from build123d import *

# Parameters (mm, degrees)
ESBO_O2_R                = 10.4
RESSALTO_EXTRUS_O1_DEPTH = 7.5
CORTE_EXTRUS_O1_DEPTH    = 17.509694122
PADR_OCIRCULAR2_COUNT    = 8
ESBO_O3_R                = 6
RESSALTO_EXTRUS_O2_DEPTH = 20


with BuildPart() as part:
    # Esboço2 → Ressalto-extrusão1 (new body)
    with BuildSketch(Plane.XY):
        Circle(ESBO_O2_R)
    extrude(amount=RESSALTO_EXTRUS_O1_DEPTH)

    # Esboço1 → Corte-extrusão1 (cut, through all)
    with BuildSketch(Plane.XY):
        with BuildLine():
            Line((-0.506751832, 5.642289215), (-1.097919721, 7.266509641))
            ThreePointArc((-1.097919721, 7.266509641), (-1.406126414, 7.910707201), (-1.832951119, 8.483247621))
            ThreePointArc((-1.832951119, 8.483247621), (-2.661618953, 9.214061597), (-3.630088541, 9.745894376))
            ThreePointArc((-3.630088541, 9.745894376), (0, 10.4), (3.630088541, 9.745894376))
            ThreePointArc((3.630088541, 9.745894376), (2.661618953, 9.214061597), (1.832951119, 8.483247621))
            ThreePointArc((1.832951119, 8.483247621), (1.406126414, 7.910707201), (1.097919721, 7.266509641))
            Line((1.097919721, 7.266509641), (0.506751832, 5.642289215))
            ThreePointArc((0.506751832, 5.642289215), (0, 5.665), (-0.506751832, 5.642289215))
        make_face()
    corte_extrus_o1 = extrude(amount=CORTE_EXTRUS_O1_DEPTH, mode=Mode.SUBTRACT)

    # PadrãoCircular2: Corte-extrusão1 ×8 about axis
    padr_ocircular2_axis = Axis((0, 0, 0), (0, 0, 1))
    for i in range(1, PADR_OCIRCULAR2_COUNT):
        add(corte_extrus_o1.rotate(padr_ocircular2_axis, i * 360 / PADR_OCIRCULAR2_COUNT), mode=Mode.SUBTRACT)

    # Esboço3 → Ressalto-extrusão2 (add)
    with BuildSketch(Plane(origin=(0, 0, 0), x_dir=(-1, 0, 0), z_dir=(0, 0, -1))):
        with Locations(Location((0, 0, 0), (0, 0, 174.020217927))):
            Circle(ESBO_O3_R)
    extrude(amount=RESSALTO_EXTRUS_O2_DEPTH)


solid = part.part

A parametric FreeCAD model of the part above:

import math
import FreeCAD as App
import Part
import Sketcher

V = App.Vector
Q = App.Units.Quantity

doc = App.newDocument("Part")
params = doc.addObject("Spreadsheet::Sheet", "Params")
for row, (alias, value) in enumerate([
    ("sketch1_diameter", "20.8 mm"),
    ("pad1_length", "7.5 mm"),
    ("sketch2_radius", "10.4 mm"),
    ("sketch2_radius2", "3.68 mm"),
    ("sketch2_radius3", "5.02 mm"),
    ("sketch3_diameter", "12 mm"),
    ("pad2_length", "20 mm"),
], start=1):
    params.set(f"A{row}", alias)
    params.set(f"B{row}", "=" + value)
    params.setAlias(f"B{row}", alias)

body = doc.addObject("PartDesign::Body", "Body")

sketch1 = doc.addObject("Sketcher::SketchObject", "Sketch")
body.addObject(sketch1)
sketch1.AttachmentSupport = (doc.XY_Plane, [""])
sketch1.MapMode = "FlatFace"
sketch1.addGeometry(Part.Circle(V(0, 0, 0), V(0, 0, 1), 10), False)
sketch1.addConstraint([
    Sketcher.Constraint("Coincident", 0, 3, -1, 1),
    Sketcher.Constraint("Diameter", 0, Q("20.8 mm")),
])
sketch1.setExpression("Constraints[1]", "Params.sketch1_diameter")
pad1 = doc.addObject("PartDesign::Pad", "Pad")
body.addObject(pad1)
pad1.Profile = sketch1
pad1.setExpression("Length", "Params.pad1_length")

sketch2 = doc.addObject("Sketcher::SketchObject", "Sketch001")
body.addObject(sketch2)
sketch2.AttachmentSupport = (doc.XY_Plane, [""])
sketch2.MapMode = "FlatFace"
sketch2.addGeometry([
    Part.LineSegment(V(-1.1, 7.3, 0), V(-0.5, 5.6, 0)),
    Part.ArcOfCircle(Part.Circle(V(0, 0, 0), V(0, 0, 1), 5.7), math.radians(84.87), math.radians(95.13)),
    Part.LineSegment(V(0.5, 5.6, 0), V(1.1, 7.3, 0)),
    Part.ArcOfCircle(Part.Circle(V(4.6, 6, 0), V(0, 0, 1), 3.7), math.radians(138), math.radians(160)),
    Part.ArcOfCircle(Part.Circle(V(5.5, 5.1, 0), V(0, 0, 1), 5), math.radians(112), math.radians(138)),
    Part.ArcOfCircle(Part.Circle(V(0, 0, 0), V(0, 0, 1), 10.4), math.radians(70), math.radians(110)),
    Part.ArcOfCircle(Part.Circle(V(-5.5, 5.1, 0), V(0, 0, 1), 5), math.radians(42), math.radians(68)),
    Part.ArcOfCircle(Part.Circle(V(-4.6, 6, 0), V(0, 0, 1), 3.7), math.radians(20), math.radians(42)),
], False)
sketch2.addConstraint([
    Sketcher.Constraint("Coincident", 0, 2, 1, 2),
    Sketcher.Constraint("Coincident", 1, 1, 2, 1),
    Sketcher.Constraint("Tangent", 2, 2, 3, 2),
    Sketcher.Constraint("Tangent", 3, 1, 4, 2),
    Sketcher.Constraint("Coincident", 4, 1, 5, 1),
    Sketcher.Constraint("Coincident", 5, 2, 6, 2),
    Sketcher.Constraint("Tangent", 6, 1, 7, 2),
    Sketcher.Constraint("Tangent", 7, 1, 0, 1),
    Sketcher.Constraint("Coincident", 1, 3, -1, 1),
    Sketcher.Constraint("Coincident", 5, 3, -1, 1),
    Sketcher.Constraint("Equal", 4, 6),
    Sketcher.Constraint("Equal", 3, 7),
    Sketcher.Constraint("Symmetric", 4, 3, 6, 3, -2),
    Sketcher.Constraint("Symmetric", 2, 2, 7, 1, -2),
    Sketcher.Constraint("Radius", 5, Q("10.4 mm")),
    Sketcher.Constraint("Angle", 0, Q("-70 deg")),
    Sketcher.Constraint("Radius", 3, Q("3.68 mm")),
    Sketcher.Constraint("Radius", 4, Q("5.02 mm")),
    Sketcher.Constraint("Radius", 1, Q("5.665 mm")),
    Sketcher.Constraint("DistanceX", 1, 1, 3, 1, Q("1.326199 mm")),
    Sketcher.Constraint("DistanceX", 4, 1, 3, 3, Q("0.9259 mm")),
    Sketcher.Constraint("Distance", 0, Q("1.728459 mm")),
])
sketch2.setExpression("Constraints[14]", "Params.sketch2_radius")
sketch2.setExpression("Constraints[16]", "Params.sketch2_radius2")
sketch2.setExpression("Constraints[17]", "Params.sketch2_radius3")
pocket1 = doc.addObject("PartDesign::Pocket", "Pocket")
body.addObject(pocket1)
pocket1.Profile = sketch2
pocket1.Type = "ThroughAll"
pocket1.Reversed = True
doc.recompute()

polarpattern = doc.addObject("PartDesign::PolarPattern", "PolarPattern")
body.addObject(polarpattern)
polarpattern.Originals = [pocket1]
polarpattern.Axis = (doc.Z_Axis, [""])
polarpattern.Angle = 360
polarpattern.Occurrences = 8
body.Tip = polarpattern

sketch3 = doc.addObject("Sketcher::SketchObject", "Sketch002")
body.addObject(sketch3)
sketch3.AttachmentSupport = (doc.XY_Plane, [""])
sketch3.MapMode = "FlatFace"
sketch3.addGeometry(Part.Circle(V(0, 0, 0), V(0, 0, 1), 6), False)
sketch3.addConstraint([
    Sketcher.Constraint("Coincident", 0, 3, -1, 1),
    Sketcher.Constraint("Diameter", 0, Q("12 mm")),
])
sketch3.setExpression("Constraints[1]", "Params.sketch3_diameter")
pad2 = doc.addObject("PartDesign::Pad", "Pad001")
body.addObject(pad2)
pad2.Profile = sketch3
pad2.setExpression("Length", "Params.pad2_length")
pad2.Reversed = True

doc.recompute()
